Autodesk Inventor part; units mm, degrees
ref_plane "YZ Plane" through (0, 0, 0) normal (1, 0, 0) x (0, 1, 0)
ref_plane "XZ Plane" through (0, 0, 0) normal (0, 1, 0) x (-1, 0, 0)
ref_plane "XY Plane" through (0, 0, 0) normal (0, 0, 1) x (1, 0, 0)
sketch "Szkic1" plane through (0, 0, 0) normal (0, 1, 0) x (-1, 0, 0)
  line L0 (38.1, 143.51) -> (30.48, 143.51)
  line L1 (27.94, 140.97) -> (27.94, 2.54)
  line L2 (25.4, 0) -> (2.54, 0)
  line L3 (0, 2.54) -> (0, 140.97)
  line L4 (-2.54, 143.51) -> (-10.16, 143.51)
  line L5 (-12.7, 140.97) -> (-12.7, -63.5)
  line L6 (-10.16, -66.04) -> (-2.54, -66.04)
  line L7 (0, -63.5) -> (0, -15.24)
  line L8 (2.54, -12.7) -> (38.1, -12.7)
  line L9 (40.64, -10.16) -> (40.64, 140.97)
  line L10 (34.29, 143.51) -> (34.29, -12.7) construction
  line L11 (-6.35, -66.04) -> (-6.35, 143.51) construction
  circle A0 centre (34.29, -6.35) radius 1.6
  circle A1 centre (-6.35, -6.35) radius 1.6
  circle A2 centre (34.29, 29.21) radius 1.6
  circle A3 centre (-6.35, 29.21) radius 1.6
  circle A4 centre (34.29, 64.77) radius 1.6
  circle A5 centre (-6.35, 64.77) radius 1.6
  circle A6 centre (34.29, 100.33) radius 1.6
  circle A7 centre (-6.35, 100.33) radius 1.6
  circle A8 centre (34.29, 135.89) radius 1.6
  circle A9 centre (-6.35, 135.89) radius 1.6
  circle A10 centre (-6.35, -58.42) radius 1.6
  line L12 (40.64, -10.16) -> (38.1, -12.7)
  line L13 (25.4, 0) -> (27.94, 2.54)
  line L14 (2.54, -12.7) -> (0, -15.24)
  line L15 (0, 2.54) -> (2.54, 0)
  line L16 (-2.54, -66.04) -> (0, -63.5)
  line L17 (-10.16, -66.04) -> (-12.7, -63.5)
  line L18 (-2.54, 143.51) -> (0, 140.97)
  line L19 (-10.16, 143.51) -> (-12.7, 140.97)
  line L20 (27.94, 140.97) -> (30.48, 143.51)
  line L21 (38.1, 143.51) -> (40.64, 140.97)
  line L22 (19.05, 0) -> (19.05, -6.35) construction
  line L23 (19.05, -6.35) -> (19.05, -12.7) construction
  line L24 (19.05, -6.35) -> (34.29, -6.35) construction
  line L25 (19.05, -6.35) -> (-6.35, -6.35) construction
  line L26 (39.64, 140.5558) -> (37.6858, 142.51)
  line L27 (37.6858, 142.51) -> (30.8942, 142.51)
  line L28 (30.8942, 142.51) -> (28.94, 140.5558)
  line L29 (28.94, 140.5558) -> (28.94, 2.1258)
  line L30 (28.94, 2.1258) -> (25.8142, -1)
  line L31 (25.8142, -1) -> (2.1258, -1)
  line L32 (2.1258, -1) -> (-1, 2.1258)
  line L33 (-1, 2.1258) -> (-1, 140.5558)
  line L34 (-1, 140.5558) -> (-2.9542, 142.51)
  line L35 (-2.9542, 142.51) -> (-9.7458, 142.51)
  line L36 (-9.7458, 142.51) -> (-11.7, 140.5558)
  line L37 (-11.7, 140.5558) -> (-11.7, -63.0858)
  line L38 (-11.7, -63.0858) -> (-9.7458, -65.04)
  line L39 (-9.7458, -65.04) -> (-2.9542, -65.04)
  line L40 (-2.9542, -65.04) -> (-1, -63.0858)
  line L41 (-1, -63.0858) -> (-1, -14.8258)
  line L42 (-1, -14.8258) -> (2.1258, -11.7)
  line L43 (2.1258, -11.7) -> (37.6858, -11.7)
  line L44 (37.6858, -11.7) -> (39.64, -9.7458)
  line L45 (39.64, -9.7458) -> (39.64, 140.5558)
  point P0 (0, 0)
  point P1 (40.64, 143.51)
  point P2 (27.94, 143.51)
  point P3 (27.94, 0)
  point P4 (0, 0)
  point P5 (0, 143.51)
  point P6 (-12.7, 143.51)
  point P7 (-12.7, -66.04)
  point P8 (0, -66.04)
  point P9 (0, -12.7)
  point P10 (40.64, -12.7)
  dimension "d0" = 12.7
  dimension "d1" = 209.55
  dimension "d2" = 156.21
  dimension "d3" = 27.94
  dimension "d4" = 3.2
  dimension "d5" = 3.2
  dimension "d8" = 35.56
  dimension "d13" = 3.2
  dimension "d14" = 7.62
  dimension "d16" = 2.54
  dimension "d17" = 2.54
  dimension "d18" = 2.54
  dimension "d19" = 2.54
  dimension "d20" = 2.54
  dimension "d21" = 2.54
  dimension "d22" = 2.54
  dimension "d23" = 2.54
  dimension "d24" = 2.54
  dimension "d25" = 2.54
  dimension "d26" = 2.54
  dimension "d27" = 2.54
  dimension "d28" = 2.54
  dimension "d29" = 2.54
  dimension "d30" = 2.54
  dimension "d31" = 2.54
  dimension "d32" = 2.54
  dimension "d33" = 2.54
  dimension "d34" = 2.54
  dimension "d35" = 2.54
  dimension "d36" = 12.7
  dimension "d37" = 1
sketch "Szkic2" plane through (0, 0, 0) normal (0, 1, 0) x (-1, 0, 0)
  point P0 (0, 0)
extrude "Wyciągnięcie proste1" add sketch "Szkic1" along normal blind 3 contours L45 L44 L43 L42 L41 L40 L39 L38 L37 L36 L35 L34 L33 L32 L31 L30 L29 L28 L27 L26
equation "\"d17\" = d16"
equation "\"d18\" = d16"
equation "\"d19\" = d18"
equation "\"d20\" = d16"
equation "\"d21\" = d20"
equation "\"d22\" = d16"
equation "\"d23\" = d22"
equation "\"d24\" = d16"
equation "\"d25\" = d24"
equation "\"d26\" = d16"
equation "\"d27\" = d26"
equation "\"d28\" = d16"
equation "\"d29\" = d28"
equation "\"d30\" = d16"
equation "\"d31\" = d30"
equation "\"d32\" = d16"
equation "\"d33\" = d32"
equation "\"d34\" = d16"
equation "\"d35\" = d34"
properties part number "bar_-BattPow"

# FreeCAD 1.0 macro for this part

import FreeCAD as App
import Part
import Sketcher

V = App.Vector
Q = App.Units.Quantity


def add_polygon(sketch, points):
    """Adds a closed chain of lines whose ends are joined by coincident constraints."""
    first, n = sketch.GeometryCount, len(points)
    for a, b in zip(points, points[1:] + points[:1]):
        sketch.addGeometry(Part.LineSegment(App.Vector(*a, 0), App.Vector(*b, 0)), False)
    for i in range(n):
        sketch.addConstraint(Sketcher.Constraint("Coincident", first + i, 2, first + (i + 1) % n, 1))

doc = App.newDocument("Part")
body = doc.addObject("PartDesign::Body", "Body")

# Sketch on XZ plane
sketch1 = body.newObject("Sketcher::SketchObject", "Sketch")
sketch1.AttachmentSupport = (doc.getObject("XZ_Plane"), [""])
sketch1.MapMode = "FlatFace"
add_polygon(sketch1, [(-39.6, -9.7), (-39.6, 140.6), (-37.7, 142.5), (-30.9, 142.5), (-28.9, 140.6), (-28.9, 2.1), (-25.8, -1), (-2.1, -1), (1, 2.1), (1, 140.6), (3, 142.5), (9.7, 142.5), (11.7, 140.6), (11.7, -63.1), (9.7, -65), (3, -65), (1, -63.1), (1, -14.8), (-2.1, -11.7), (-37.7, -11.7)])  # lines 0-19
sketch1.addGeometry(Part.Circle(V(6.3, -58.4, 0), V(0, 0, 1), 1.6), False)  # 20
sketch1.addGeometry(Part.Circle(V(6.3, -6.3, 0), V(0, 0, 1), 1.6), False)  # 21
sketch1.addGeometry(Part.Circle(V(6.3, 29.2, 0), V(0, 0, 1), 1.6), False)  # 22
sketch1.addGeometry(Part.Circle(V(-34.3, -6.3, 0), V(0, 0, 1), 1.6), False)  # 23
sketch1.addGeometry(Part.Circle(V(-34.3, 29.2, 0), V(0, 0, 1), 1.6), False)  # 24
sketch1.addGeometry(Part.Circle(V(6.3, 64.8, 0), V(0, 0, 1), 1.6), False)  # 25
sketch1.addGeometry(Part.Circle(V(6.3, 100.3, 0), V(0, 0, 1), 1.6), False)  # 26
sketch1.addGeometry(Part.Circle(V(6.3, 135.9, 0), V(0, 0, 1), 1.6), False)  # 27
sketch1.addGeometry(Part.Circle(V(-34.3, 64.8, 0), V(0, 0, 1), 1.6), False)  # 28
sketch1.addGeometry(Part.Circle(V(-34.3, 100.3, 0), V(0, 0, 1), 1.6), False)  # 29
sketch1.addGeometry(Part.Circle(V(-34.3, 135.9, 0), V(0, 0, 1), 1.6), False)  # 30
sketch1.addConstraint(Sketcher.Constraint("Vertical", 0))
sketch1.addConstraint(Sketcher.Constraint("Horizontal", 2))
sketch1.addConstraint(Sketcher.Constraint("Vertical", 4))
sketch1.addConstraint(Sketcher.Constraint("Horizontal", 6))
sketch1.addConstraint(Sketcher.Constraint("Vertical", 8))
sketch1.addConstraint(Sketcher.Constraint("Horizontal", 10))
sketch1.addConstraint(Sketcher.Constraint("Vertical", 12))
sketch1.addConstraint(Sketcher.Constraint("Horizontal", 14))
sketch1.addConstraint(Sketcher.Constraint("Vertical", 16))
sketch1.addConstraint(Sketcher.Constraint("Horizontal", 18))
sketch1.addConstraint(Sketcher.Constraint("Equal", 20, 21))
sketch1.addConstraint(Sketcher.Constraint("Equal", 21, 22))
sketch1.addConstraint(Sketcher.Constraint("Equal", 22, 23))
sketch1.addConstraint(Sketcher.Constraint("Equal", 23, 24))
sketch1.addConstraint(Sketcher.Constraint("Equal", 24, 25))
sketch1.addConstraint(Sketcher.Constraint("Equal", 25, 26))
sketch1.addConstraint(Sketcher.Constraint("Equal", 26, 27))
sketch1.addConstraint(Sketcher.Constraint("Equal", 27, 28))
sketch1.addConstraint(Sketcher.Constraint("Equal", 28, 29))
sketch1.addConstraint(Sketcher.Constraint("Equal", 29, 30))
sketch1.addConstraint(Sketcher.Constraint("Perpendicular", 1, 3))
sketch1.addConstraint(Sketcher.Constraint("Parallel", 3, 5))
sketch1.addConstraint(Sketcher.Constraint("Perpendicular", 5, 7))
sketch1.addConstraint(Sketcher.Constraint("Parallel", 7, 9))
sketch1.addConstraint(Sketcher.Constraint("Perpendicular", 9, 11))
sketch1.addConstraint(Sketcher.Constraint("Perpendicular", 11, 13))
sketch1.addConstraint(Sketcher.Constraint("Perpendicular", 13, 15))
sketch1.addConstraint(Sketcher.Constraint("Parallel", 15, 17))
sketch1.addConstraint(Sketcher.Constraint("Parallel", 17, 19))
sketch1.addConstraint(Sketcher.Constraint("Horizontal", 21, 3, 23, 3))
sketch1.addConstraint(Sketcher.Constraint("Horizontal", 22, 3, 24, 3))
sketch1.addConstraint(Sketcher.Constraint("Horizontal", 25, 3, 28, 3))
sketch1.addConstraint(Sketcher.Constraint("Horizontal", 26, 3, 29, 3))
sketch1.addConstraint(Sketcher.Constraint("Horizontal", 27, 3, 30, 3))
sketch1.addConstraint(Sketcher.Constraint("Horizontal", 0, 2, 3, 2))
sketch1.addConstraint(Sketcher.Constraint("Horizontal", 4, 2, 7, 2))
sketch1.addConstraint(Sketcher.Constraint("Horizontal", 3, 2, 8, 2))
sketch1.addConstraint(Sketcher.Constraint("Horizontal", 2, 2, 9, 2))
sketch1.addConstraint(Sketcher.Constraint("Horizontal", 8, 2, 11, 2))
sketch1.addConstraint(Sketcher.Constraint("Horizontal", 12, 2, 15, 2))
sketch1.addConstraint(Sketcher.Constraint("Vertical", 20, 3, 21, 3))
sketch1.addConstraint(Sketcher.Constraint("Vertical", 21, 3, 22, 3))
sketch1.addConstraint(Sketcher.Constraint("Vertical", 23, 3, 24, 3))
sketch1.addConstraint(Sketcher.Constraint("Vertical", 22, 3, 25, 3))
sketch1.addConstraint(Sketcher.Constraint("Vertical", 25, 3, 26, 3))
sketch1.addConstraint(Sketcher.Constraint("Vertical", 26, 3, 27, 3))
sketch1.addConstraint(Sketcher.Constraint("Vertical", 24, 3, 28, 3))
sketch1.addConstraint(Sketcher.Constraint("Vertical", 28, 3, 29, 3))
sketch1.addConstraint(Sketcher.Constraint("Vertical", 29, 3, 30, 3))
sketch1.addConstraint(Sketcher.Constraint("Vertical", 10, 2, 13, 2))
sketch1.addConstraint(Sketcher.Constraint("Vertical", 9, 2, 14, 2))
sketch1.addConstraint(Sketcher.Constraint("Vertical", 8, 2, 15, 2))
sketch1.addConstraint(Sketcher.Constraint("Vertical", 6, 2, 17, 2))
sketch1.addConstraint(Sketcher.Constraint("Vertical", 1, 2, 18, 2))
sketch1.addConstraint(Sketcher.Constraint("Equal", 2, 10))
sketch1.addConstraint(Sketcher.Constraint("DistanceX", 18, 2, 18, 1, Q("1.4 in")))
sketch1.addConstraint(Sketcher.Constraint("DistanceY", 21, 3, 22, 3, Q("1.4 in")))
sketch1.addConstraint(Sketcher.Constraint("DistanceY", 22, 3, 25, 3, Q("1.4 in")))
sketch1.addConstraint(Sketcher.Constraint("DistanceY", 25, 3, 26, 3, Q("1.4 in")))
sketch1.addConstraint(Sketcher.Constraint("DistanceY", 26, 3, 27, 3, Q("1.4 in")))
sketch1.addConstraint(Sketcher.Constraint("Diameter", 20, Q("3.2 mm")))
sketch1.addConstraint(Sketcher.Constraint("DistanceY", 16, 1, 16, 2, Q("1.9 in")))
sketch1.addConstraint(Sketcher.Constraint("DistanceY", 4, 2, 4, 1, Q("5.45 in")))
sketch1.addConstraint(Sketcher.Constraint("DistanceY", 20, 3, -1, 1, Q("2.3 in")))
sketch1.addConstraint(Sketcher.Constraint("DistanceX", 23, 3, 21, 3, Q("1.6 in")))
sketch1.addConstraint(Sketcher.Constraint("DistanceX", 2, 2, 10, 2, Q("1.6 in")))
sketch1.addConstraint(Sketcher.Constraint("DistanceX", -1, 1, 20, 3, Q("0.25 in")))
sketch1.addConstraint(Sketcher.Constraint("DistanceY", 21, 3, -1, 1, Q("0.25 in")))
sketch1.addConstraint(Sketcher.Constraint("DistanceY", 5, 2, -1, 1, Q("1 mm")))
sketch1.addConstraint(Sketcher.Constraint("DistanceX", -1, 1, 7, 2, Q("1 mm")))
sketch1.addConstraint(Sketcher.Constraint("Distance", 1, Q("0.1088 in")))
sketch1.addConstraint(Sketcher.Constraint("DistanceX", 2, 1, 2, 2, Q("6.7916 mm")))
sketch1.addConstraint(Sketcher.Constraint("DistanceY", 0, 1, 0, 2, Q("150.3016 mm")))
pad1 = body.newObject("PartDesign::Pad", "Pad")
pad1.Profile = sketch1
pad1.Length = Q("0.1181102 in")
pad1.Reversed = True

doc.recompute()
